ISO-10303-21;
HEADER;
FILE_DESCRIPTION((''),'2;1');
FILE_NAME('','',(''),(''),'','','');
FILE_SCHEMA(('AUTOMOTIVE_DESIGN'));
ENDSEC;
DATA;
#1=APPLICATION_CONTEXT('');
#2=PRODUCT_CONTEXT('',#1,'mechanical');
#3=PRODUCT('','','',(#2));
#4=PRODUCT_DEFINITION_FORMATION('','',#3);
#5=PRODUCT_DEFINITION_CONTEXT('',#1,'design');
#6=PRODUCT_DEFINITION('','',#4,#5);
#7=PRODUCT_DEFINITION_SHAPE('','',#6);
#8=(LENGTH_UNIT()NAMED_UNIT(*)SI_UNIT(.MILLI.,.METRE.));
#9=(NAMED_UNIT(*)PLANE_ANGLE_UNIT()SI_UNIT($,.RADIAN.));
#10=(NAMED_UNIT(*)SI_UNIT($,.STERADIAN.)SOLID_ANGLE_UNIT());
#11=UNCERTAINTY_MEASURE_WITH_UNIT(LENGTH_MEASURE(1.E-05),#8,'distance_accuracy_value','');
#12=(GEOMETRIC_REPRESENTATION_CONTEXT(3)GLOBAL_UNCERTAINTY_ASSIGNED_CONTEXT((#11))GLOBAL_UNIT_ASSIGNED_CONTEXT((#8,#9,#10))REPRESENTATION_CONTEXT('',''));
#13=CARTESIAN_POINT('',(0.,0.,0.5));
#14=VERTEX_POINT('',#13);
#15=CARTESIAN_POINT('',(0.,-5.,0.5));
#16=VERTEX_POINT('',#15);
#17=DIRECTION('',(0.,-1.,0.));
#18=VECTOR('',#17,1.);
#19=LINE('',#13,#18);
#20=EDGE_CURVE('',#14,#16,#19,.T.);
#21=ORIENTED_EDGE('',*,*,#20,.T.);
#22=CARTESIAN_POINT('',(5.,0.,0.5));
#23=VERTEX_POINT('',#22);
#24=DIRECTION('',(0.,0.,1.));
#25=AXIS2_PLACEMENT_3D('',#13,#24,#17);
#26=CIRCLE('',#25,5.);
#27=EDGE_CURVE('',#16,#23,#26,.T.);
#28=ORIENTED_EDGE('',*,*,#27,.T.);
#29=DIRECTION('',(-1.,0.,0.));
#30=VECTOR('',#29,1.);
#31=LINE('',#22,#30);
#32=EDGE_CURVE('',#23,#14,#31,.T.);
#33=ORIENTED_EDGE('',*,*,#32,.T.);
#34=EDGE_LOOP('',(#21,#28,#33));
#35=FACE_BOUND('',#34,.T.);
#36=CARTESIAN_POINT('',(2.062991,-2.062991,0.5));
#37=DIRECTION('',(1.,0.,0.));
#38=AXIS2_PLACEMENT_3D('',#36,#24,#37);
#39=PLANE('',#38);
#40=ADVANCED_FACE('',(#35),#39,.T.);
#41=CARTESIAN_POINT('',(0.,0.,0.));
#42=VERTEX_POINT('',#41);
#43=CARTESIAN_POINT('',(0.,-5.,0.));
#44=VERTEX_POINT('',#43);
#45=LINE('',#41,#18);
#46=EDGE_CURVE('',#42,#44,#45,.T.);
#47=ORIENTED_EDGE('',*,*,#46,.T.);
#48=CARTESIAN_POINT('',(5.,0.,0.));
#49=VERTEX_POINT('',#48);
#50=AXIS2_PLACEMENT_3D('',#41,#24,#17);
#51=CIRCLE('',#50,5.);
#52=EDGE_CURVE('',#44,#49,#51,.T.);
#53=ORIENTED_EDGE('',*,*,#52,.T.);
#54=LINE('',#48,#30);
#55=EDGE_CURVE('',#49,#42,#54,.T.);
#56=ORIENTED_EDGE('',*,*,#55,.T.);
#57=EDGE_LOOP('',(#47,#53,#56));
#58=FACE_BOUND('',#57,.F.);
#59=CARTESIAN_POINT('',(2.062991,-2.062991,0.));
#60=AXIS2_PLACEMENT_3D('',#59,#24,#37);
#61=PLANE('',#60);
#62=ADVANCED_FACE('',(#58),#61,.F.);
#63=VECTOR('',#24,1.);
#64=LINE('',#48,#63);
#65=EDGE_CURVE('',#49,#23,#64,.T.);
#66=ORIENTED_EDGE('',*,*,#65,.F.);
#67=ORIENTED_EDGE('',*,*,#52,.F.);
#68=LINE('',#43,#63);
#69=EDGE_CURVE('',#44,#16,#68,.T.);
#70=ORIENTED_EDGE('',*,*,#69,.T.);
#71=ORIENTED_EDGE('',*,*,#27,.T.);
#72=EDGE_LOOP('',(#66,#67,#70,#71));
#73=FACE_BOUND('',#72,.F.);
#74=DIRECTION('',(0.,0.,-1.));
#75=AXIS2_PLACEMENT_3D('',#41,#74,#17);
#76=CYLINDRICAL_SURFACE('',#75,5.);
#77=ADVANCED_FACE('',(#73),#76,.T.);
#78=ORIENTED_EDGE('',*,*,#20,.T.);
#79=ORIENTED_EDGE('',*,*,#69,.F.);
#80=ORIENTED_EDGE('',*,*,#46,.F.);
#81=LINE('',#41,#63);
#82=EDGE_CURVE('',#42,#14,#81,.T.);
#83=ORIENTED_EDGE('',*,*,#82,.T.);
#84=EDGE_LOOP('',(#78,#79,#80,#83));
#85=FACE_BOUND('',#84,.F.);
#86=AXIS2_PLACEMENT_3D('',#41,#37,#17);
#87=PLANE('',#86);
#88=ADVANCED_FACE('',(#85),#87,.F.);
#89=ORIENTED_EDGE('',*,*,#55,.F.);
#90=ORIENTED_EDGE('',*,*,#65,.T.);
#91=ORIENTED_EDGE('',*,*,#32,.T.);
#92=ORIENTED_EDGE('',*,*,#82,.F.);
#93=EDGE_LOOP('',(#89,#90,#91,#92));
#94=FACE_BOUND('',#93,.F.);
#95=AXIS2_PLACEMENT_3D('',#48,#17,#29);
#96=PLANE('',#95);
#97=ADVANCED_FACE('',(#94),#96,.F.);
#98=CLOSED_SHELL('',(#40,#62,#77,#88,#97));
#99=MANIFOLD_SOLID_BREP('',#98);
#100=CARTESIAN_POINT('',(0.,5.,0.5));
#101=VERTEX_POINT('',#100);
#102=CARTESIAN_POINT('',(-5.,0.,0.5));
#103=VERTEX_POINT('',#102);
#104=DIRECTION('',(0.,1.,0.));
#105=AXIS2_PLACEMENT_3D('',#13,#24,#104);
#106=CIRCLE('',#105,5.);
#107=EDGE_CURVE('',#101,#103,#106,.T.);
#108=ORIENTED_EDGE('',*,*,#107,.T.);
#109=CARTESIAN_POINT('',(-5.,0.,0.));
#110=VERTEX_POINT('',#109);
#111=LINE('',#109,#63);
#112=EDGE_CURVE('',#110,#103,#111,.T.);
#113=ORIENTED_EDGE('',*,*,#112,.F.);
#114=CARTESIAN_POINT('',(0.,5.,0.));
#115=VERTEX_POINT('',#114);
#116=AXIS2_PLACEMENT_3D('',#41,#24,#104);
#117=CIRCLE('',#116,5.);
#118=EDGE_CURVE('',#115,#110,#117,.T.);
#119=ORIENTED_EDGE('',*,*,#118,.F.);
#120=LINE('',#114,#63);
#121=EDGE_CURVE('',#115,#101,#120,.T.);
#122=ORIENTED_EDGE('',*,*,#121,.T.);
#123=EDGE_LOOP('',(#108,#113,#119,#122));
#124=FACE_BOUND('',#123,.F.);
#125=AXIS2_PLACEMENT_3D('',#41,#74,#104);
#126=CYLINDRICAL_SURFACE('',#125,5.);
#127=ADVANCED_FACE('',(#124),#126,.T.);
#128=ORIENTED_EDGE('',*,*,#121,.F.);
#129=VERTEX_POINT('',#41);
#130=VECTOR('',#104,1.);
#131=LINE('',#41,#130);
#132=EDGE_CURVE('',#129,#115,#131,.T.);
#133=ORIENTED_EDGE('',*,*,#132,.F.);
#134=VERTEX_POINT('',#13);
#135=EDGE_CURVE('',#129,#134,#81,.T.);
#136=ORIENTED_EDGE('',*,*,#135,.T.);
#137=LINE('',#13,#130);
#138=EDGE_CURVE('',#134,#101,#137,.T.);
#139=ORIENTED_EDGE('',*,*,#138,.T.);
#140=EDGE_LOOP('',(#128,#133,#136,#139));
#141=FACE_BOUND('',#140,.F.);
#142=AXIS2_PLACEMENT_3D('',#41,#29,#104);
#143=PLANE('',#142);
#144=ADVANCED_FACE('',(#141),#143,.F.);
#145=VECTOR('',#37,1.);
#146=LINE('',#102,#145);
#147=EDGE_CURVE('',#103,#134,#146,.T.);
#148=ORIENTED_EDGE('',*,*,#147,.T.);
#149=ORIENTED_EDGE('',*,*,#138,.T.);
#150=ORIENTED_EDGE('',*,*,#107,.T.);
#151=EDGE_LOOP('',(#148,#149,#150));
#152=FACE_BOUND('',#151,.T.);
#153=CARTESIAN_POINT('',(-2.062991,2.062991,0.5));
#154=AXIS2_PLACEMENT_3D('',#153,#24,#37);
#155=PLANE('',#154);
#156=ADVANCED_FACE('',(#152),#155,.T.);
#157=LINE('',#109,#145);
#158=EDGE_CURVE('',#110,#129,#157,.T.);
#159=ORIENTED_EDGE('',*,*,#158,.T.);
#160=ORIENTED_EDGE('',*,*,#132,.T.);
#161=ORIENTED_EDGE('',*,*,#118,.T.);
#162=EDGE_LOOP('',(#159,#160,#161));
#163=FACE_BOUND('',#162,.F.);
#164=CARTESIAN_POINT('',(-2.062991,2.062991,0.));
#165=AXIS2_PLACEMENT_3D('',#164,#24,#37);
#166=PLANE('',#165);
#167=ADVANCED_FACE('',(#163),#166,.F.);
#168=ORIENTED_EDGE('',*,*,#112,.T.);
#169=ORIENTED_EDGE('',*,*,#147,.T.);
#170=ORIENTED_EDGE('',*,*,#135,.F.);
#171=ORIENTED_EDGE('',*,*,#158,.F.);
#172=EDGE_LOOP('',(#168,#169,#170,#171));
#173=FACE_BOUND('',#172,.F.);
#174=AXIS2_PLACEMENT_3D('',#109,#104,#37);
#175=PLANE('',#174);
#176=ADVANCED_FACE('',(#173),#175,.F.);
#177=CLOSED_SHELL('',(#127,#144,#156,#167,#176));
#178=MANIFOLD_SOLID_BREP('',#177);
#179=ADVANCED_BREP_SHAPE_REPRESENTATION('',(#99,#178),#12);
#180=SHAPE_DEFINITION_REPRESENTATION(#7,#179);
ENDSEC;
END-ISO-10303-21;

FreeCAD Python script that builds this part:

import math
import FreeCAD as App
import Part
import Sketcher

V = App.Vector

doc = App.newDocument("Part")
body = doc.addObject("PartDesign::Body", "Body")

sketch1 = body.newObject("Sketcher::SketchObject", "Sketch")
sketch1.AttachmentSupport = (doc.getObject("XY_Plane"), [""])
sketch1.MapMode = "FlatFace"
sketch1.addGeometry(Part.LineSegment(V(0, 0, 0), V(0, 5, 0)), False)
sketch1.addGeometry(Part.ArcOfCircle(Part.Circle(V(0, 0, 0), V(0, 0, 1), 5), math.radians(90), math.radians(180)), False)
sketch1.addGeometry(Part.LineSegment(V(-5, 0, 0), V(0, 0, 0)), False)
sketch1.addConstraint(Sketcher.Constraint("Coincident", 0, 2, 1, 1))
sketch1.addConstraint(Sketcher.Constraint("Coincident", 1, 2, 2, 1))
sketch1.addConstraint(Sketcher.Constraint("Coincident", 2, 2, 0, 1))
sketch1.addConstraint(Sketcher.Constraint("Vertical", 0))
sketch1.addConstraint(Sketcher.Constraint("Horizontal", 2))
sketch1.addConstraint(Sketcher.Constraint("Coincident", 1, 3, -1, 1))
sketch1.addConstraint(Sketcher.Constraint("Coincident", 2, 2, -1, 1))
sketch1.addConstraint(Sketcher.Constraint("Radius", 1, 5.0))
pad1 = body.newObject("PartDesign::Pad", "Pad")
pad1.Profile = sketch1
pad1.Length = 0.5
body2 = doc.addObject("PartDesign::Body", "Body001")

sketch2 = body2.newObject("Sketcher::SketchObject", "Sketch001")
sketch2.AttachmentSupport = (doc.getObject("XY_Plane001"), [""])
sketch2.MapMode = "FlatFace"
sketch2.addGeometry(Part.ArcOfCircle(Part.Circle(V(0, 0, 0), V(0, 0, 1), 5), math.radians(-90), math.radians(0)), False)
sketch2.addGeometry(Part.LineSegment(V(5, 0, 0), V(0, 0, 0)), False)
sketch2.addGeometry(Part.LineSegment(V(0, 0, 0), V(0, -5, 0)), False)
sketch2.addConstraint(Sketcher.Constraint("Coincident", 0, 2, 1, 1))
sketch2.addConstraint(Sketcher.Constraint("Coincident", 1, 2, 2, 1))
sketch2.addConstraint(Sketcher.Constraint("Coincident", 2, 2, 0, 1))
sketch2.addConstraint(Sketcher.Constraint("Horizontal", 1))
sketch2.addConstraint(Sketcher.Constraint("Vertical", 2))
sketch2.addConstraint(Sketcher.Constraint("Coincident", 0, 3, -1, 1))
sketch2.addConstraint(Sketcher.Constraint("Coincident", 1, 2, -1, 1))
sketch2.addConstraint(Sketcher.Constraint("Radius", 0, 5.0))
pad2 = body2.newObject("PartDesign::Pad", "Pad001")
pad2.Profile = sketch2
pad2.Length = 0.5

doc.recompute()
